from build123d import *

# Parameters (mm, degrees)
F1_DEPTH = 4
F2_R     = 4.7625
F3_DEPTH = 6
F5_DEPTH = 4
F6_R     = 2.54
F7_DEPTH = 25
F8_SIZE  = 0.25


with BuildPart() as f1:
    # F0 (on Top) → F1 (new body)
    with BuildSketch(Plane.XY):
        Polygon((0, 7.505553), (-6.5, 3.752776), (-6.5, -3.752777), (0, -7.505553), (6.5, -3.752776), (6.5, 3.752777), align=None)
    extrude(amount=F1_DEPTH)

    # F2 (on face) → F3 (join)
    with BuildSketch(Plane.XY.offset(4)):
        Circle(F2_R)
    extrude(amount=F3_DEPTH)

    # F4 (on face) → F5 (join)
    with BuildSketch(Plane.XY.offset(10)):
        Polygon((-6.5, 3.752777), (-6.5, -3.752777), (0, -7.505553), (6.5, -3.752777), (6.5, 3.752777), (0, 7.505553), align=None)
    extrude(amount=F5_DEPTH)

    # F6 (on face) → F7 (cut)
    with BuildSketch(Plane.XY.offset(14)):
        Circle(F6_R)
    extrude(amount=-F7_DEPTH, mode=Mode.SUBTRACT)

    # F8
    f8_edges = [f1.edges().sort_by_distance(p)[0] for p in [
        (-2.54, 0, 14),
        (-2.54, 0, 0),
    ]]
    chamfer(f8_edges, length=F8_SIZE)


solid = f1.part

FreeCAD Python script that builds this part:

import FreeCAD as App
import Part
import Sketcher
from FreeCAD import Vector
Q = App.Units.Quantity


def edges_at(feature, points):
    """Names of the edges that pass closest to the given points."""
    edges = feature.Shape.Edges
    near = lambda p: min(range(len(edges)), key=lambda i: edges[i].distToShape(Part.Vertex(*p))[0])
    return sorted({f"Edge{near(p) + 1}" for p in points})


def add_polygon(sketch, points):
    """Adds a closed chain of lines whose ends are joined by coincident constraints."""
    first, n = sketch.GeometryCount, len(points)
    for a, b in zip(points, points[1:] + points[:1]):
        sketch.addGeometry(Part.LineSegment(App.Vector(*a, 0), App.Vector(*b, 0)), False)
    for i in range(n):
        sketch.addConstraint(Sketcher.Constraint("Coincident", first + i, 2, first + (i + 1) % n, 1))

doc = App.newDocument("Part")
body = doc.addObject("PartDesign::Body", "Body")

# Sketch on XY plane
sketch1 = doc.addObject("Sketcher::SketchObject", "Sketch")
body.addObject(sketch1)
sketch1.AttachmentSupport = (doc.XY_Plane, [""])
sketch1.MapMode = "FlatFace"
add_polygon(sketch1, [(0, 8), (-6, 4), (-6, -4), (0, -8), (6, -4), (6, 4)])  # lines 0-5
sketch1.addConstraint([
    Sketcher.Constraint("Vertical", 1),
    Sketcher.Constraint("Vertical", 4),
    Sketcher.Constraint("Symmetric", 0, 2, 3, 2, -1, 1),
    Sketcher.Constraint("Symmetric", 2, 2, 5, 2, -1, 1),
    Sketcher.Constraint("PointOnObject", 2, 2, -2),
    Sketcher.Constraint("Parallel", 2, 5),
    Sketcher.Constraint("Horizontal", 1, 2, 3, 2),
    Sketcher.Constraint("Angle", 0, Q("-149.999998 deg")),
    Sketcher.Constraint("DistanceX", 1, 2, 3, 2, 13.0),
    Sketcher.Constraint("DistanceY", 1, 2, 1, 1, 7.505553),
])
pad1 = doc.addObject("PartDesign::Pad", "Pad")
body.addObject(pad1)
pad1.Profile = sketch1
pad1.Length = 4

# Sketch on XY plane
sketch2 = doc.addObject("Sketcher::SketchObject", "Sketch001")
body.addObject(sketch2)
sketch2.AttachmentSupport = (doc.XY_Plane, [""])
sketch2.MapMode = "FlatFace"
sketch2.AttachmentOffset = App.Placement(Vector(0, 0, 4), App.Rotation())
sketch2.addGeometry(Part.Circle(Vector(0, 0, 0), Vector(0, 0, 1), 4.8), False)
sketch2.addConstraint([
    Sketcher.Constraint("Coincident", 0, 3, -1, 1),
    Sketcher.Constraint("Diameter", 0, 9.525),
])
pad2 = doc.addObject("PartDesign::Pad", "Pad001")
body.addObject(pad2)
pad2.Profile = sketch2
pad2.Length = 6

# Sketch on XY plane
sketch3 = doc.addObject("Sketcher::SketchObject", "Sketch002")
body.addObject(sketch3)
sketch3.AttachmentSupport = (doc.XY_Plane, [""])
sketch3.MapMode = "FlatFace"
sketch3.AttachmentOffset = App.Placement(Vector(0, 0, 10), App.Rotation())
add_polygon(sketch3, [(-6, 4), (-6, -4), (0, -8), (6, -4), (6, 4), (0, 8)])  # lines 0-5
sketch3.addConstraint([
    Sketcher.Constraint("Vertical", 0),
    Sketcher.Constraint("Vertical", 3),
    Sketcher.Constraint("Symmetric", 0, 2, 3, 2, -1, 1),
    Sketcher.Constraint("Symmetric", 1, 2, 4, 2, -1, 1),
    Sketcher.Constraint("PointOnObject", 1, 2, -2),
    Sketcher.Constraint("Parallel", 2, 5),
    Sketcher.Constraint("Horizontal", 0, 2, 2, 2),
    Sketcher.Constraint("Angle", 1, Q("-29.999995 deg")),
    Sketcher.Constraint("DistanceX", 0, 2, 2, 2, 13.0),
    Sketcher.Constraint("DistanceY", 0, 2, 0, 1, 7.505554),
])
pad3 = doc.addObject("PartDesign::Pad", "Pad002")
body.addObject(pad3)
pad3.Profile = sketch3
pad3.Length = 4

# Sketch on XY plane
sketch4 = doc.addObject("Sketcher::SketchObject", "Sketch003")
body.addObject(sketch4)
sketch4.AttachmentSupport = (doc.XY_Plane, [""])
sketch4.MapMode = "FlatFace"
sketch4.AttachmentOffset = App.Placement(Vector(0, 0, 14), App.Rotation())
sketch4.addGeometry(Part.Circle(Vector(0, 0, 0), Vector(0, 0, 1), 2.5), False)
sketch4.addConstraint([
    Sketcher.Constraint("Coincident", 0, 3, -1, 1),
    Sketcher.Constraint("Diameter", 0, 5.08),
])
pocket1 = doc.addObject("PartDesign::Pocket", "Pocket")
body.addObject(pocket1)
pocket1.Profile = sketch4
pocket1.Length = 25
doc.recompute()

chamfer = doc.addObject("PartDesign::Chamfer", "Chamfer")
body.addObject(chamfer)
chamfer.Base = (pocket1, edges_at(pocket1, [(-2.54, 0, 14), (-2.54, 0, 0)]))
chamfer.Size = 0.25

doc.recompute()
